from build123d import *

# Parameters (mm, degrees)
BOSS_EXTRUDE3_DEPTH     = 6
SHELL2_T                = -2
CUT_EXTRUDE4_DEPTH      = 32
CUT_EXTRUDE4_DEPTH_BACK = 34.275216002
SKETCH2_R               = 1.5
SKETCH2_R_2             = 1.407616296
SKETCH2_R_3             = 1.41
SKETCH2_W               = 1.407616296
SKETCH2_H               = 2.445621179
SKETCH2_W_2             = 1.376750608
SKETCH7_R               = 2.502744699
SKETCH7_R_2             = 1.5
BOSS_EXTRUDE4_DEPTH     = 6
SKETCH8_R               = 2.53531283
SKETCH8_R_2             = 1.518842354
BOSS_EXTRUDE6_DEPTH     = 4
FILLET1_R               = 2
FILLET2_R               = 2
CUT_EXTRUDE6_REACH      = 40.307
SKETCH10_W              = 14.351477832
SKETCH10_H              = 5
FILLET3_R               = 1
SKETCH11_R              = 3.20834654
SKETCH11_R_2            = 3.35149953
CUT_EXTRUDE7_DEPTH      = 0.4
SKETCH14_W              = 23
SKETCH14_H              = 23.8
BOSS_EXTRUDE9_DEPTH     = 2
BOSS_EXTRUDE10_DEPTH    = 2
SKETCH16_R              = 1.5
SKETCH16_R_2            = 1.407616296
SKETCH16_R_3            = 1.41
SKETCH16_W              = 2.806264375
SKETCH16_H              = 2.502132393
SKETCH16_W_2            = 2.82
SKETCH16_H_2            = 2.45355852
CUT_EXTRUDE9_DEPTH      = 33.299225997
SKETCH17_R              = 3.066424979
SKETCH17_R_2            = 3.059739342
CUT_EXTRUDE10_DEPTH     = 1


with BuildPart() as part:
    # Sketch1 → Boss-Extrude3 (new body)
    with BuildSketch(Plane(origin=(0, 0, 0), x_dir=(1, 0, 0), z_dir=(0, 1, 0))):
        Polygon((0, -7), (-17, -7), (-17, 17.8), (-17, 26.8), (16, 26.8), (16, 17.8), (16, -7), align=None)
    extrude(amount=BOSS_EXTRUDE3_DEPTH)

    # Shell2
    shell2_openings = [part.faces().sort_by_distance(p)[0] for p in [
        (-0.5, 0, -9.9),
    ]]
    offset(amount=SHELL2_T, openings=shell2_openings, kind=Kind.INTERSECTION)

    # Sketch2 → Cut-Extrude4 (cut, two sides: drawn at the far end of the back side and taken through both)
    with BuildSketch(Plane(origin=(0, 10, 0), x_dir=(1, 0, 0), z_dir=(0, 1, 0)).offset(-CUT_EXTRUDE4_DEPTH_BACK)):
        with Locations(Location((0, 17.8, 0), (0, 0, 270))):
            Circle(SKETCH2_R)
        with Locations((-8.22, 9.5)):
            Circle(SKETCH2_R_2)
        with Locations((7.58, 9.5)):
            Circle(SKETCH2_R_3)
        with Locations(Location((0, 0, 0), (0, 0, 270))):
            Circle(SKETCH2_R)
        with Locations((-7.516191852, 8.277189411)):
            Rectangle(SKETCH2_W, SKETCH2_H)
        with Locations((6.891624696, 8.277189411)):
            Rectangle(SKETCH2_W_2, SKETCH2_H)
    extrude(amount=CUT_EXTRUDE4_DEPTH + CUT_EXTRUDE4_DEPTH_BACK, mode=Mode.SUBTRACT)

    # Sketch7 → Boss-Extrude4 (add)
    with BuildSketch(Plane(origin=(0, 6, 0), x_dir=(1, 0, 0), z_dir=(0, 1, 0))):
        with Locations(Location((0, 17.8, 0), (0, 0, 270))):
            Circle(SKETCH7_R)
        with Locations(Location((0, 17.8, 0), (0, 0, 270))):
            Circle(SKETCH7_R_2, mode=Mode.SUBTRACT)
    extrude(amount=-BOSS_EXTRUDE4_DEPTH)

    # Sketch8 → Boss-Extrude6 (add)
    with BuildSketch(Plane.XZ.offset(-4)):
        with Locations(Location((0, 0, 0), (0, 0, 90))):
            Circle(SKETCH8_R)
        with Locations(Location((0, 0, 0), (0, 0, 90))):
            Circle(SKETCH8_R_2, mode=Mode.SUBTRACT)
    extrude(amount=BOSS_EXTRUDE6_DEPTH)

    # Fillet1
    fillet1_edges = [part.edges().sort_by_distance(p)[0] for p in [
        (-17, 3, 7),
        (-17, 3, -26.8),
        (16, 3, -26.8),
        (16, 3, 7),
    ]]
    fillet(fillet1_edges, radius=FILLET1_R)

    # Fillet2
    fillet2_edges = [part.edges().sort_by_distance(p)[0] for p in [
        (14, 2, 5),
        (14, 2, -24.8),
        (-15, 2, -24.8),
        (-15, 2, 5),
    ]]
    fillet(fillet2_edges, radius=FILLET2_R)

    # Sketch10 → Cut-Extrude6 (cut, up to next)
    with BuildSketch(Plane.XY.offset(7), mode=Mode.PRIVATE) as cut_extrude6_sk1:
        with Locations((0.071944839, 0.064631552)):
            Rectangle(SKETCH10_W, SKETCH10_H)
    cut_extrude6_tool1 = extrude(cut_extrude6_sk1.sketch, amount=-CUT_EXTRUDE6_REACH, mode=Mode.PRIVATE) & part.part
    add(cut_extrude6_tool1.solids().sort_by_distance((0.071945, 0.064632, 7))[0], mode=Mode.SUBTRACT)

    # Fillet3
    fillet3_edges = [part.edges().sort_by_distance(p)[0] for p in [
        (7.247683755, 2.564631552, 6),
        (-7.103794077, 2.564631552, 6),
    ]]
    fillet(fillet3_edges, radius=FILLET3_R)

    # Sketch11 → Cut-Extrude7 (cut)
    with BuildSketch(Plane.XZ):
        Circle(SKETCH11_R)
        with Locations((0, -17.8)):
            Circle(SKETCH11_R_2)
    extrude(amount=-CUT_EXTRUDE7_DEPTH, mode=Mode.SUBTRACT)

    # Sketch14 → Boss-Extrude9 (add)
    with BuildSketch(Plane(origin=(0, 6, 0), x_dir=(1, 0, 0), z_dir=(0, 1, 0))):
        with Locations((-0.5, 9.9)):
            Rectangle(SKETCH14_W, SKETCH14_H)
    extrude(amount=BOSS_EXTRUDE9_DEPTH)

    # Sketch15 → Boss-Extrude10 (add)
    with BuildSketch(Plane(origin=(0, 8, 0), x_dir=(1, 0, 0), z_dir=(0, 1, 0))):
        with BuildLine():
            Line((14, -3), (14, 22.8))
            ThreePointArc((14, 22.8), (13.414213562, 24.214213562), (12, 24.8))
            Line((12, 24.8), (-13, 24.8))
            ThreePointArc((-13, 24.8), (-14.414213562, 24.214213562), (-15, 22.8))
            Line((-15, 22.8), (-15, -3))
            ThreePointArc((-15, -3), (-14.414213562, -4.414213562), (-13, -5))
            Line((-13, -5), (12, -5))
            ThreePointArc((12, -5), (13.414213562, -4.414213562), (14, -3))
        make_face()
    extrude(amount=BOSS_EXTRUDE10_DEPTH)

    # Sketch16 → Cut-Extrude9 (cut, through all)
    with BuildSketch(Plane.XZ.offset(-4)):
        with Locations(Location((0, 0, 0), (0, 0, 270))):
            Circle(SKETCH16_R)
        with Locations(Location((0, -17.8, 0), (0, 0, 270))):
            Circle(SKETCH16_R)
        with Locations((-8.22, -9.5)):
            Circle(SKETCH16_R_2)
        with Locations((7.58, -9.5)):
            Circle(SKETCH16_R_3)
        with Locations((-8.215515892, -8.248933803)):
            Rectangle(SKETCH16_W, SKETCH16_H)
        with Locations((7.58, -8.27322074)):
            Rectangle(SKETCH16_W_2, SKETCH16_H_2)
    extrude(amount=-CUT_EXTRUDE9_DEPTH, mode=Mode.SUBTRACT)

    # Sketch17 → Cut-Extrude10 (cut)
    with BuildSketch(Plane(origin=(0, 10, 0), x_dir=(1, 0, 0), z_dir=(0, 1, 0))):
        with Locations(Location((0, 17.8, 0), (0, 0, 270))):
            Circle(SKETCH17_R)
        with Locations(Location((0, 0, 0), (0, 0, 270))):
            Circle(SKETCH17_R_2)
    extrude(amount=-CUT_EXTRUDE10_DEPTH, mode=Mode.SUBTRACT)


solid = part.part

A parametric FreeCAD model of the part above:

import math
import FreeCAD as App
import Part
import Sketcher
from FreeCAD import Vector
Q = App.Units.Quantity


def edges_at(feature, points):
    """Names of the edges that pass closest to the given points."""
    edges = feature.Shape.Edges
    near = lambda p: min(range(len(edges)), key=lambda i: edges[i].distToShape(Part.Vertex(*p))[0])
    return sorted({f"Edge{near(p) + 1}" for p in points})


def faces_at(feature, points):
    """Names of the faces that lie closest to the given points."""
    faces = feature.Shape.Faces
    near = lambda p: min(range(len(faces)), key=lambda i: faces[i].distToShape(Part.Vertex(*p))[0])
    return sorted({f"Face{near(p) + 1}" for p in points})

doc = App.newDocument("Part")
body = doc.addObject("PartDesign::Body", "Body")

sketch1 = body.newObject("Sketcher::SketchObject", "Sketch")
sketch1.AttachmentSupport = (doc.getObject("XZ_Plane"), [""])
sketch1.MapMode = "FlatFace"
sketch1.addGeometry([
    Part.LineSegment(Vector(-17, 7, 0), Vector(16, 7, 0)),
    Part.LineSegment(Vector(16, 7, 0), Vector(16, -27, 0)),
    Part.LineSegment(Vector(16, -27, 0), Vector(-17, -27, 0)),
    Part.LineSegment(Vector(-17, -27, 0), Vector(-17, 7, 0)),
], False)
sketch1.addConstraint([
    Sketcher.Constraint("Coincident", 0, 2, 1, 1),
    Sketcher.Constraint("Coincident", 1, 2, 2, 1),
    Sketcher.Constraint("Coincident", 2, 2, 3, 1),
    Sketcher.Constraint("Coincident", 3, 2, 0, 1),
    Sketcher.Constraint("Horizontal", 0),
    Sketcher.Constraint("Vertical", 1),
    Sketcher.Constraint("Horizontal", 2),
    Sketcher.Constraint("Vertical", 3),
    Sketcher.Constraint("DistanceX", 0, 1, 0, 2, Q("33 mm")),
    Sketcher.Constraint("DistanceY", 1, 2, 1, 1, Q("33.8 mm")),
    Sketcher.Constraint("DistanceX", -1, 1, 0, 2, Q("16 mm")),
    Sketcher.Constraint("DistanceY", -1, 1, 0, 2, Q("7 mm")),
])
pad1 = body.newObject("PartDesign::Pad", "Pad")
pad1.Profile = sketch1
pad1.Length = 6
pad1.Reversed = True
doc.recompute()

thickness = body.newObject("PartDesign::Thickness", "Thickness")
thickness.Base = (pad1, faces_at(pad1, [(-0.5, 0, -9.9)]))
thickness.Value = 2
thickness.Reversed = True
thickness.Join = "Intersection"

sketch2 = body.newObject("Sketcher::SketchObject", "Sketch001")
sketch2.AttachmentSupport = (doc.getObject("XZ_Plane"), [""])
sketch2.MapMode = "FlatFace"
sketch2.AttachmentOffset = App.Placement(Vector(0, 0, -10), App.Rotation())
sketch2.addGeometry([
    Part.Circle(Vector(0, -17.8, 0), Vector(0, 0, 1), 1.5),
    Part.ArcOfCircle(Part.Circle(Vector(-8.2, -9.5, 0), Vector(0, 0, 1), 1.4), math.radians(90), math.radians(360)),
    Part.LineSegment(Vector(-8.2, -8.1, 0), Vector(-8.2, -7.1, 0)),
    Part.LineSegment(Vector(-8.2, -7.1, 0), Vector(-6.8, -7.1, 0)),
    Part.LineSegment(Vector(-6.8, -7.1, 0), Vector(-6.8, -9.5, 0)),
    Part.ArcOfCircle(Part.Circle(Vector(7.6, -9.5, 0), Vector(0, 0, 1), 1.4), math.radians(168), math.radians(450)),
    Part.LineSegment(Vector(6.2, -9.2, 0), Vector(6.2, -7.1, 0)),
    Part.LineSegment(Vector(6.2, -7.1, 0), Vector(7.6, -7.1, 0)),
    Part.LineSegment(Vector(7.6, -7.1, 0), Vector(7.6, -8.1, 0)),
    Part.Circle(Vector(0, 0, 0), Vector(0, 0, 1), 1.5),
], False)
sketch2.addConstraint([
    Sketcher.Constraint("Coincident", 1, 1, 2, 1),
    Sketcher.Constraint("Coincident", 2, 2, 3, 1),
    Sketcher.Constraint("Coincident", 3, 2, 4, 1),
    Sketcher.Constraint("Tangent", 4, 2, 1, 2),
    Sketcher.Constraint("Coincident", 5, 1, 6, 1),
    Sketcher.Constraint("Coincident", 6, 2, 7, 1),
    Sketcher.Constraint("Coincident", 7, 2, 8, 1),
    Sketcher.Constraint("Coincident", 8, 2, 5, 2),
    Sketcher.Constraint("Vertical", 2),
    Sketcher.Constraint("Horizontal", 3),
    Sketcher.Constraint("Vertical", 4),
    Sketcher.Constraint("Vertical", 6),
    Sketcher.Constraint("Horizontal", 7),
    Sketcher.Constraint("Vertical", 8),
    Sketcher.Constraint("Coincident", 9, 3, -1, 1),
    Sketcher.Constraint("Equal", 0, 9),
    Sketcher.Constraint("PointOnObject", 0, 3, -2),
    Sketcher.Constraint("Horizontal", 1, 3, 5, 3),
    Sketcher.Constraint("Horizontal", 3, 2, 6, 2),
    Sketcher.Constraint("Vertical", 5, 3, 7, 2),
    Sketcher.Constraint("Diameter", 0, Q("3 mm")),
    Sketcher.Constraint("Radius", 5, Q("1.41 mm")),
    Sketcher.Constraint("DistanceY", 0, 3, -1, 1, Q("17.8 mm")),
    Sketcher.Constraint("DistanceY", 1, 3, -1, 1, Q("9.5 mm")),
    Sketcher.Constraint("DistanceX", 1, 3, 5, 3, Q("15.8 mm")),
    Sketcher.Constraint("DistanceX", 1, 1, 5, 3, Q("15.8 mm")),
    Sketcher.Constraint("DistanceX", 1, 3, -1, 1, Q("8.22 mm")),
    Sketcher.Constraint("Radius", 1, Q("1.407616 mm")),
    Sketcher.Constraint("DistanceX", 7, 1, 7, 2, Q("1.376751 mm")),
    Sketcher.Constraint("DistanceY", 4, 2, 4, 1, Q("2.445621 mm")),
])
pocket1 = body.newObject("PartDesign::Pocket", "Pocket")
pocket1.Profile = sketch2
pocket1.Type = "ThroughAll"
pocket1.Midplane = True

sketch3 = body.newObject("Sketcher::SketchObject", "Sketch002")
sketch3.AttachmentSupport = (doc.getObject("XZ_Plane"), [""])
sketch3.MapMode = "FlatFace"
sketch3.AttachmentOffset = App.Placement(Vector(0, 0, -6), App.Rotation())
sketch3.addGeometry([
    Part.Circle(Vector(0, -17.8, 0), Vector(0, 0, 1), 2.5),
    Part.Circle(Vector(0, -17.8, 0), Vector(0, 0, 1), 1.5),
], False)
sketch3.addConstraint([
    Sketcher.Constraint("Coincident", 1, 3, 0, 3),
    Sketcher.Constraint("PointOnObject", 0, 3, -2),
    Sketcher.Constraint("Diameter", 1, Q("3 mm")),
    Sketcher.Constraint("DistanceY", 0, 3, -1, 1, Q("17.8 mm")),
    Sketcher.Constraint("Diameter", 0, Q("5.005489 mm")),
])
pad2 = body.newObject("PartDesign::Pad", "Pad001")
pad2.Profile = sketch3
pad2.Length = 6

sketch4 = body.newObject("Sketcher::SketchObject", "Sketch003")
sketch4.AttachmentSupport = (doc.getObject("XZ_Plane"), [""])
sketch4.MapMode = "FlatFace"
sketch4.AttachmentOffset = App.Placement(Vector(0, 0, -4), App.Rotation())
sketch4.addGeometry([
    Part.Circle(Vector(0, 0, 0), Vector(0, 0, 1), 2.5),
    Part.Circle(Vector(0, 0, 0), Vector(0, 0, 1), 1.5),
], False)
sketch4.addConstraint([
    Sketcher.Constraint("Coincident", 0, 3, -1, 1),
    Sketcher.Constraint("Coincident", 1, 3, -1, 1),
    Sketcher.Constraint("Diameter", 0, Q("5.070626 mm")),
    Sketcher.Constraint("Diameter", 1, Q("3.037685 mm")),
])
pad3 = body.newObject("PartDesign::Pad", "Pad002")
pad3.Profile = sketch4
pad3.Length = 4
doc.recompute()

fillet = body.newObject("PartDesign::Fillet", "Fillet")
fillet.Base = (pad3, edges_at(pad3, [
    (-17, 3, 7),
    (-17, 3, -26.8),
    (16, 3, -26.8),
    (16, 3, 7),
]))
fillet.Radius = 2
doc.recompute()

fillet2 = body.newObject("PartDesign::Fillet", "Fillet001")
fillet2.Base = (fillet, edges_at(fillet, [
    (14, 2, 5),
    (14, 2, -24.8),
    (-15, 2, -24.8),
    (-15, 2, 5),
]))
fillet2.Radius = 2

sketch5 = body.newObject("Sketcher::SketchObject", "Sketch004")
sketch5.AttachmentSupport = (doc.getObject("XY_Plane"), [""])
sketch5.MapMode = "FlatFace"
sketch5.AttachmentOffset = App.Placement(Vector(0, 0, 7), App.Rotation())
sketch5.addGeometry([
    Part.LineSegment(Vector(-7, 3, 0), Vector(-7, -2, 0)),
    Part.LineSegment(Vector(-7, -2, 0), Vector(7, -2, 0)),
    Part.LineSegment(Vector(7, -2, 0), Vector(7, 3, 0)),
    Part.LineSegment(Vector(7, 3, 0), Vector(-7, 3, 0)),
], False)
sketch5.addConstraint([
    Sketcher.Constraint("Coincident", 0, 2, 1, 1),
    Sketcher.Constraint("Coincident", 1, 2, 2, 1),
    Sketcher.Constraint("Coincident", 2, 2, 3, 1),
    Sketcher.Constraint("Coincident", 3, 2, 0, 1),
    Sketcher.Constraint("Vertical", 0),
    Sketcher.Constraint("Horizontal", 1),
    Sketcher.Constraint("Vertical", 2),
    Sketcher.Constraint("Horizontal", 3),
    Sketcher.Constraint("DistanceY", 0, 2, 0, 1, Q("5 mm")),
    Sketcher.Constraint("DistanceX", 1, 1, 1, 2, Q("14.351478 mm")),
    Sketcher.Constraint("DistanceY", 0, 2, -1, 1, Q("2.435368 mm")),
    Sketcher.Constraint("DistanceX", 0, 2, -1, 1, Q("7.103794 mm")),
])
pocket2 = body.newObject("PartDesign::Pocket", "Pocket001")
pocket2.Profile = sketch5
pocket2.Type = "UpToFirst"
doc.recompute()

fillet3 = body.newObject("PartDesign::Fillet", "Fillet002")
fillet3.Base = (pocket2, edges_at(pocket2, [(7.248, 2.565, 6), (-7.104, 2.565, 6)]))
fillet3.Radius = 1

sketch6 = body.newObject("Sketcher::SketchObject", "Sketch005")
sketch6.AttachmentSupport = (doc.getObject("XZ_Plane"), [""])
sketch6.MapMode = "FlatFace"
sketch6.addGeometry([
    Part.Circle(Vector(0, 0, 0), Vector(0, 0, 1), 3.2),
    Part.Circle(Vector(0, -17.8, 0), Vector(0, 0, 1), 3.4),
], False)
sketch6.addConstraint([
    Sketcher.Constraint("Coincident", 0, 3, -1, 1),
    Sketcher.Constraint("PointOnObject", 1, 3, -2),
    Sketcher.Constraint("Diameter", 1, Q("6.702999 mm")),
    Sketcher.Constraint("DistanceY", 1, 3, -1, 1, Q("17.8 mm")),
    Sketcher.Constraint("Diameter", 0, Q("6.416693 mm")),
])
pocket3 = body.newObject("PartDesign::Pocket", "Pocket002")
pocket3.Profile = sketch6
pocket3.Length = 0.4

sketch7 = body.newObject("Sketcher::SketchObject", "Sketch006")
sketch7.AttachmentSupport = (doc.getObject("XZ_Plane"), [""])
sketch7.MapMode = "FlatFace"
sketch7.AttachmentOffset = App.Placement(Vector(0, 0, -6), App.Rotation())
sketch7.addGeometry([
    Part.LineSegment(Vector(-12, -22, 0), Vector(-12, 2, 0)),
    Part.LineSegment(Vector(-12, 2, 0), Vector(11, 2, 0)),
    Part.LineSegment(Vector(11, 2, 0), Vector(11, -22, 0)),
    Part.LineSegment(Vector(11, -22, 0), Vector(-12, -22, 0)),
], False)
sketch7.addConstraint([
    Sketcher.Constraint("Coincident", 0, 2, 1, 1),
    Sketcher.Constraint("Coincident", 1, 2, 2, 1),
    Sketcher.Constraint("Coincident", 2, 2, 3, 1),
    Sketcher.Constraint("Coincident", 3, 2, 0, 1),
    Sketcher.Constraint("Vertical", 0),
    Sketcher.Constraint("Horizontal", 1),
    Sketcher.Constraint("Vertical", 2),
    Sketcher.Constraint("Horizontal", 3),
    Sketcher.Constraint("DistanceX", 1, 1, 1, 2, Q("23 mm")),
    Sketcher.Constraint("DistanceY", 0, 1, 0, 2, Q("23.8 mm")),
    Sketcher.Constraint("DistanceX", 0, 2, -1, 1, Q("12 mm")),
    Sketcher.Constraint("DistanceY", -1, 1, 0, 2, Q("2 mm")),
])
pad4 = body.newObject("PartDesign::Pad", "Pad003")
pad4.Profile = sketch7
pad4.Length = 2
pad4.Reversed = True

sketch8 = body.newObject("Sketcher::SketchObject", "Sketch007")
sketch8.AttachmentSupport = (doc.getObject("XZ_Plane"), [""])
sketch8.MapMode = "FlatFace"
sketch8.AttachmentOffset = App.Placement(Vector(0, 0, -8), App.Rotation())
sketch8.addGeometry([
    Part.LineSegment(Vector(14, 3, 0), Vector(14, -22.8, 0)),
    Part.ArcOfCircle(Part.Circle(Vector(12, -22.8, 0), Vector(0, 0, 1), 2), math.radians(-90), math.radians(0)),
    Part.LineSegment(Vector(12, -24.8, 0), Vector(-13, -24.8, 0)),
    Part.ArcOfCircle(Part.Circle(Vector(-13, -22.8, 0), Vector(0, 0, 1), 2), math.radians(-180), math.radians(-90)),
    Part.LineSegment(Vector(-15, -22.8, 0), Vector(-15, 3, 0)),
    Part.ArcOfCircle(Part.Circle(Vector(-13, 3, 0), Vector(0, 0, 1), 2), math.radians(90), math.radians(180)),
    Part.LineSegment(Vector(-13, 5, 0), Vector(12, 5, 0)),
    Part.ArcOfCircle(Part.Circle(Vector(12, 3, 0), Vector(0, 0, 1), 2), math.radians(0), math.radians(90)),
], False)
sketch8.addConstraint([
    Sketcher.Constraint("Tangent", 0, 2, 1, 2),
    Sketcher.Constraint("Tangent", 1, 1, 2, 1),
    Sketcher.Constraint("Tangent", 2, 2, 3, 2),
    Sketcher.Constraint("Tangent", 3, 1, 4, 1),
    Sketcher.Constraint("Tangent", 4, 2, 5, 2),
    Sketcher.Constraint("Tangent", 5, 1, 6, 1),
    Sketcher.Constraint("Tangent", 6, 2, 7, 2),
    Sketcher.Constraint("Tangent", 7, 1, 0, 1),
    Sketcher.Constraint("Vertical", 0),
    Sketcher.Constraint("Horizontal", 2),
    Sketcher.Constraint("Vertical", 4),
    Sketcher.Constraint("Horizontal", 6),
    Sketcher.Constraint("Equal", 1, 3),
    Sketcher.Constraint("Equal", 3, 5),
    Sketcher.Constraint("Equal", 5, 7),
    Sketcher.Constraint("Radius", 1, Q("2 mm")),
    Sketcher.Constraint("DistanceX", 2, 2, 2, 1, Q("25 mm")),
    Sketcher.Constraint("DistanceY", 0, 2, 0, 1, Q("25.8 mm")),
    Sketcher.Constraint("DistanceX", -1, 1, 1, 3, Q("12 mm")),
    Sketcher.Constraint("DistanceY", -1, 1, 5, 3, Q("3 mm")),
])
pad5 = body.newObject("PartDesign::Pad", "Pad004")
pad5.Profile = sketch8
pad5.Length = 2
pad5.Reversed = True

sketch9 = body.newObject("Sketcher::SketchObject", "Sketch008")
sketch9.AttachmentSupport = (doc.getObject("XZ_Plane"), [""])
sketch9.MapMode = "FlatFace"
sketch9.AttachmentOffset = App.Placement(Vector(0, 0, -4), App.Rotation())
sketch9.addGeometry([
    Part.Circle(Vector(0, 0, 0), Vector(0, 0, 1), 1.5),
    Part.Circle(Vector(0, -17.8, 0), Vector(0, 0, 1), 1.5),
    Part.ArcOfCircle(Part.Circle(Vector(-8.2, -9.5, 0), Vector(0, 0, 1), 1.4), math.radians(174), math.radians(360)),
    Part.LineSegment(Vector(-6.8, -9.5, 0), Vector(-6.8, -7, 0)),
    Part.LineSegment(Vector(-6.8, -7, 0), Vector(-9.6, -7, 0)),
    Part.LineSegment(Vector(-9.6, -7, 0), Vector(-9.6, -9.3, 0)),
    Part.ArcOfCircle(Part.Circle(Vector(7.6, -9.5, 0), Vector(0, 0, 1), 1.4), math.radians(180), math.radians(360)),
    Part.LineSegment(Vector(9, -9.5, 0), Vector(9, -7, 0)),
    Part.LineSegment(Vector(9, -7, 0), Vector(6.2, -7, 0)),
    Part.LineSegment(Vector(6.2, -7, 0), Vector(6.2, -9.5, 0)),
], False)
sketch9.addConstraint([
    Sketcher.Constraint("Tangent", 2, 2, 3, 1),
    Sketcher.Constraint("Coincident", 3, 2, 4, 1),
    Sketcher.Constraint("Coincident", 4, 2, 5, 1),
    Sketcher.Constraint("Coincident", 5, 2, 2, 1),
    Sketcher.Constraint("Tangent", 6, 2, 7, 1),
    Sketcher.Constraint("Coincident", 7, 2, 8, 1),
    Sketcher.Constraint("Coincident", 8, 2, 9, 1),
    Sketcher.Constraint("Tangent", 9, 2, 6, 1),
    Sketcher.Constraint("Vertical", 3),
    Sketcher.Constraint("Horizontal", 4),
    Sketcher.Constraint("Vertical", 5),
    Sketcher.Constraint("Vertical", 7),
    Sketcher.Constraint("Horizontal", 8),
    Sketcher.Constraint("Vertical", 9),
    Sketcher.Constraint("Coincident", 0, 3, -1, 1),
    Sketcher.Constraint("Equal", 0, 1),
    Sketcher.Constraint("PointOnObject", 1, 3, -2),
    Sketcher.Constraint("Horizontal", 2, 3, 6, 3),
    Sketcher.Constraint("Diameter", 0, Q("3 mm")),
    Sketcher.Constraint("Radius", 6, Q("1.41 mm")),
    Sketcher.Constraint("DistanceY", 1, 3, -1, 1, Q("17.8 mm")),
    Sketcher.Constraint("DistanceY", 2, 3, -1, 1, Q("9.5 mm")),
    Sketcher.Constraint("DistanceX", 2, 3, 6, 3, Q("15.8 mm")),
    Sketcher.Constraint("DistanceX", 2, 3, -1, 1, Q("8.22 mm")),
    Sketcher.Constraint("Radius", 2, Q("1.407616 mm")),
    Sketcher.Constraint("DistanceY", 5, 2, 5, 1, Q("2.343491 mm")),
    Sketcher.Constraint("DistanceY", 7, 1, 7, 2, Q("2.453559 mm")),
    Sketcher.Constraint("DistanceX", 4, 2, 4, 1, Q("2.806264 mm")),
])
pocket4 = body.newObject("PartDesign::Pocket", "Pocket003")
pocket4.Profile = sketch9
pocket4.Type = "ThroughAll"

sketch10 = body.newObject("Sketcher::SketchObject", "Sketch009")
sketch10.AttachmentSupport = (doc.getObject("XZ_Plane"), [""])
sketch10.MapMode = "FlatFace"
sketch10.AttachmentOffset = App.Placement(Vector(0, 0, -10), App.Rotation())
sketch10.addGeometry([
    Part.Circle(Vector(0, -17.8, 0), Vector(0, 0, 1), 3.1),
    Part.Circle(Vector(0, 0, 0), Vector(0, 0, 1), 3.1),
], False)
sketch10.addConstraint([
    Sketcher.Constraint("Coincident", 1, 3, -1, 1),
    Sketcher.Constraint("PointOnObject", 0, 3, -2),
    Sketcher.Constraint("DistanceY", 0, 3, -1, 1, Q("17.8 mm")),
    Sketcher.Constraint("Diameter", 0, Q("6.13285 mm")),
    Sketcher.Constraint("Diameter", 1, Q("6.119479 mm")),
])
pocket5 = body.newObject("PartDesign::Pocket", "Pocket004")
pocket5.Profile = sketch10
pocket5.Length = 1
pocket5.Reversed = True

doc.recompute()
